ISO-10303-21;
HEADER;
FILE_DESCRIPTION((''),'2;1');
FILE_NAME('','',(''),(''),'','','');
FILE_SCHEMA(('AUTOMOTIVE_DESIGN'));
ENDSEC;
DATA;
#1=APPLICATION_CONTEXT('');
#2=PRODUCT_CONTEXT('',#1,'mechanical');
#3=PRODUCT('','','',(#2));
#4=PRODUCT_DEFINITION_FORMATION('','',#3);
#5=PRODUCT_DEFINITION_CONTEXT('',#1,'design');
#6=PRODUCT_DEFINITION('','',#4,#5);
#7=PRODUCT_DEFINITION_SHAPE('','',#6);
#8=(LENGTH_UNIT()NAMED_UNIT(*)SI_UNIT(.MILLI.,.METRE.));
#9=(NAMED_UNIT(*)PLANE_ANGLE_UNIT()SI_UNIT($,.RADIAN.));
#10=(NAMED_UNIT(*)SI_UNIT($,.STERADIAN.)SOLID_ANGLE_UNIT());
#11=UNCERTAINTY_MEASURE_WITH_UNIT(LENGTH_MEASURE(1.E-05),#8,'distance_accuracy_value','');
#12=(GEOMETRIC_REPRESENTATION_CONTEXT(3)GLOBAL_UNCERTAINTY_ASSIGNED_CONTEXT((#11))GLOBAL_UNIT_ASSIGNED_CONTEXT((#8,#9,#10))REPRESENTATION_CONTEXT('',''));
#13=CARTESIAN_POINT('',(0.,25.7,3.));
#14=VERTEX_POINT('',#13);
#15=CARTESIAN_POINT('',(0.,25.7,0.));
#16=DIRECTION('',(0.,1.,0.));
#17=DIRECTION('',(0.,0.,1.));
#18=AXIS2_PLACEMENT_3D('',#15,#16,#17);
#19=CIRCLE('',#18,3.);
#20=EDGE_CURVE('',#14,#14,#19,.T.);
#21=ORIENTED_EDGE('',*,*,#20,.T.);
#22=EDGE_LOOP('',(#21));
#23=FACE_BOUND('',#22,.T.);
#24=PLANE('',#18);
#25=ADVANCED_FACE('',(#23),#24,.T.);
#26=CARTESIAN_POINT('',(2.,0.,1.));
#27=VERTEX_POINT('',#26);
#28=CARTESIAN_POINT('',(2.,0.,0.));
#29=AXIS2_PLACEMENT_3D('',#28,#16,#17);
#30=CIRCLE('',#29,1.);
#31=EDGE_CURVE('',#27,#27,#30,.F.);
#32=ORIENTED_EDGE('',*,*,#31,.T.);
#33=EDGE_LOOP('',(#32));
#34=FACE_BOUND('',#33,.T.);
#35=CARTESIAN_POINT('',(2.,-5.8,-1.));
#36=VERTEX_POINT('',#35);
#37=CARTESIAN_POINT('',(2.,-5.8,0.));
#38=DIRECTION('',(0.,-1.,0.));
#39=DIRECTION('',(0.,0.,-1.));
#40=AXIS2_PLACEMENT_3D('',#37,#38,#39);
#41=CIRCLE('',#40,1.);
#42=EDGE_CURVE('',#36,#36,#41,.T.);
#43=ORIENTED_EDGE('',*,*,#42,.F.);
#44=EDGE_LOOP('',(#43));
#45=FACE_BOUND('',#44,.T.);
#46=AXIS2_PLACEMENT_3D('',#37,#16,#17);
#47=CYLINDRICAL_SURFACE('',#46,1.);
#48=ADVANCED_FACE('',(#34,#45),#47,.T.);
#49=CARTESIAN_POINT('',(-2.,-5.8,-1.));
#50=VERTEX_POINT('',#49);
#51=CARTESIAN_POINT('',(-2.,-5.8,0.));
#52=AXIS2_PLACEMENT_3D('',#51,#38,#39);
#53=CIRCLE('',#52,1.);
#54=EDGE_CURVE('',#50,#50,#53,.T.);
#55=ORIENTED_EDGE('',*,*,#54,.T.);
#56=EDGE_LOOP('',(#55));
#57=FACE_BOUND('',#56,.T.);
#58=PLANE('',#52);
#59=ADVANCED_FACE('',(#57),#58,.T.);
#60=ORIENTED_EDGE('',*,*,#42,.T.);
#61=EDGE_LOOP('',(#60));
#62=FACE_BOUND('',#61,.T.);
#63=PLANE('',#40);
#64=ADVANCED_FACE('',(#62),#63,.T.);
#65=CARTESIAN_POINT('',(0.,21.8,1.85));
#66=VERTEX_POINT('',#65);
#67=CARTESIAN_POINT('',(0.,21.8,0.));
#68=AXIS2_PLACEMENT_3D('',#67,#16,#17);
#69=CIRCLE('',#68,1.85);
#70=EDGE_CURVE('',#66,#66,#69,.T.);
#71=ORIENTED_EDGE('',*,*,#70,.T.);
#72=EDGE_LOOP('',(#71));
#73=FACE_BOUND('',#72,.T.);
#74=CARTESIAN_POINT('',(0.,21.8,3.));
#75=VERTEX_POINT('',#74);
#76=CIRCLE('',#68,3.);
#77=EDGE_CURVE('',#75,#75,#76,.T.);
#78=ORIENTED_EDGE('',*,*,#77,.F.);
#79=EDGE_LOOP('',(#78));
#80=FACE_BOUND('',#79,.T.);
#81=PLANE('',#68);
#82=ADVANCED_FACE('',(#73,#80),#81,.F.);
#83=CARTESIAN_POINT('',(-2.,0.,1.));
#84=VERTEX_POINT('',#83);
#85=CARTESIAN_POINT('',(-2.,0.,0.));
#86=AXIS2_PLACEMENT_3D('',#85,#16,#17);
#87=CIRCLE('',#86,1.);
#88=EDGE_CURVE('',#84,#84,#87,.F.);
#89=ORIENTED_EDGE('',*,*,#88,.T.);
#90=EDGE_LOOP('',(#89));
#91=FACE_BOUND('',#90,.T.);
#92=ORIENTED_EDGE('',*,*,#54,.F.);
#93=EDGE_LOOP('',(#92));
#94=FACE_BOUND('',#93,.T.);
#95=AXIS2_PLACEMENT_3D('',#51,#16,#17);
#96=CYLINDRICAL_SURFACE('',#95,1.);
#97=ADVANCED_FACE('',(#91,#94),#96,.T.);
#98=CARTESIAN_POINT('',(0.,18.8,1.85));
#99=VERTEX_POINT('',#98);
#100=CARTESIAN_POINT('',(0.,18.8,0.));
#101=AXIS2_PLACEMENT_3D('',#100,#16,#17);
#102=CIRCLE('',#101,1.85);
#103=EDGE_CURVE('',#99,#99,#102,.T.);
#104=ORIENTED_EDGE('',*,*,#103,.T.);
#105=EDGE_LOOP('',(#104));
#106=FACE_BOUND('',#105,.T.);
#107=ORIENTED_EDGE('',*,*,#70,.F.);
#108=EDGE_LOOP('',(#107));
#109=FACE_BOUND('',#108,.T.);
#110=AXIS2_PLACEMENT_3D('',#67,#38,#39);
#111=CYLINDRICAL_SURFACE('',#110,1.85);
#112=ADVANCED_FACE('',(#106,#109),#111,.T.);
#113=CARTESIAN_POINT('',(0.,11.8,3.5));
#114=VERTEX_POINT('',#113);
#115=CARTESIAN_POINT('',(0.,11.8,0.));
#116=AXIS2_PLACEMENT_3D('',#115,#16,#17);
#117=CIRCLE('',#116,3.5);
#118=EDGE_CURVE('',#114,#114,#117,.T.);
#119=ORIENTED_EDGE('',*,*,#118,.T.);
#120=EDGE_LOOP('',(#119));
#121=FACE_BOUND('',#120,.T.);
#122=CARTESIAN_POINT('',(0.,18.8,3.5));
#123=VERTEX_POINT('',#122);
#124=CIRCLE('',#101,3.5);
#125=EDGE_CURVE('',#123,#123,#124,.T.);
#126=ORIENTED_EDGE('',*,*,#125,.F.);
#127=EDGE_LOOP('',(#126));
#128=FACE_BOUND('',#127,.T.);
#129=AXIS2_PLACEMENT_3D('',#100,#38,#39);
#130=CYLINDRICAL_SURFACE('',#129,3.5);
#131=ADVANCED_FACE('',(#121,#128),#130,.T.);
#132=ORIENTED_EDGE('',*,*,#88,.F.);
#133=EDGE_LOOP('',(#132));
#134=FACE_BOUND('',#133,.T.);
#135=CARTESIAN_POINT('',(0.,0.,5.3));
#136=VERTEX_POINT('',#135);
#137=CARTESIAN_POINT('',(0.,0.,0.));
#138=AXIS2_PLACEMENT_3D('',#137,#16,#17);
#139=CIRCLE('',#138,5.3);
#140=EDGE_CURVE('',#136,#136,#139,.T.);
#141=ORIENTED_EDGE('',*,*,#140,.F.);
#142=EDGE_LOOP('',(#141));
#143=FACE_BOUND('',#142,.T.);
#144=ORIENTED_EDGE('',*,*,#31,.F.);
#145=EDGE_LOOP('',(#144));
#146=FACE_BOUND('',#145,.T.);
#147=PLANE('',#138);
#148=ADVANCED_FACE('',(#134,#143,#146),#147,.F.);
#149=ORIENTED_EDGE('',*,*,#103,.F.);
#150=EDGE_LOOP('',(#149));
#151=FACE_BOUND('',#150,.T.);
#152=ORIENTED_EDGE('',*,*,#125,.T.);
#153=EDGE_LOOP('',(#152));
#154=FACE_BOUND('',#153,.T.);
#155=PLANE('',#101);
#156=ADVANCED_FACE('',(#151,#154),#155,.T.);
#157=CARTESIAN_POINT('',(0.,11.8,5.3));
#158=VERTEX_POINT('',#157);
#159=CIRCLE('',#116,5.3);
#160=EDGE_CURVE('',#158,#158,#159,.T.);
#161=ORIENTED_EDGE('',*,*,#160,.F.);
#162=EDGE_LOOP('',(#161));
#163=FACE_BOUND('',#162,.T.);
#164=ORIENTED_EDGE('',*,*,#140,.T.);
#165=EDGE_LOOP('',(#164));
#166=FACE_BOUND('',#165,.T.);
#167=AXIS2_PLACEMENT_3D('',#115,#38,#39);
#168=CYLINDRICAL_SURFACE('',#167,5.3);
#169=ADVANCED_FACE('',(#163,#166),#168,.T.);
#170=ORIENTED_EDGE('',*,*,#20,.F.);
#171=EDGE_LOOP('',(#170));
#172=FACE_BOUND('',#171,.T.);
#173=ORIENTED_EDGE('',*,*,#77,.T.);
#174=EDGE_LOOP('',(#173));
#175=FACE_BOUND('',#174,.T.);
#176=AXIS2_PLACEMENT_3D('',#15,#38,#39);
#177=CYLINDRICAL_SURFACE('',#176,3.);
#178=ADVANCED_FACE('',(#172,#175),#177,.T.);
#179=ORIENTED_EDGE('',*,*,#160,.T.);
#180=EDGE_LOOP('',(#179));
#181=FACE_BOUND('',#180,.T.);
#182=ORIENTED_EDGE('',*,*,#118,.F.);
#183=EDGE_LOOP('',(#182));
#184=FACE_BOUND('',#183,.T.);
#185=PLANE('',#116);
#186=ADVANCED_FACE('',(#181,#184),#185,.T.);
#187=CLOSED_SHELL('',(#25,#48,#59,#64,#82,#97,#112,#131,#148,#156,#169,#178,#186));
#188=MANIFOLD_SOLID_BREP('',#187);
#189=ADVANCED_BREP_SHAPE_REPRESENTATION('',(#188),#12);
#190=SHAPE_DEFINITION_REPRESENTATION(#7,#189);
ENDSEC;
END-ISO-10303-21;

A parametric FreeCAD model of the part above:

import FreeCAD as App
import Part
import Sketcher

V = App.Vector

doc = App.newDocument("Part")
params = doc.addObject("Spreadsheet::Sheet", "Params")
for row, (alias, value) in enumerate([
    ("sketch1_diameter", "10.6 mm"),
    ("pad1_length", "11.8 mm"),
    ("sketch2_diameter", "7 mm"),
    ("pad2_length", "7 mm"),
    ("sketch3_diameter", "3.7 mm"),
    ("pad3_length", "3 mm"),
    ("sketch4_diameter", "6 mm"),
    ("pad4_length", "3.9 mm"),
    ("sketch5_diameter", "2 mm"),
    ("pad5_length", "5.8 mm"),
], start=1):
    params.set(f"A{row}", alias)
    params.set(f"B{row}", "=" + value)
    params.setAlias(f"B{row}", alias)

body = doc.addObject("PartDesign::Body", "Body")

# Sketch on XZ plane
sketch1 = body.newObject("Sketcher::SketchObject", "Sketch")
sketch1.AttachmentSupport = (doc.getObject("XZ_Plane"), [""])
sketch1.MapMode = "FlatFace"
sketch1.addGeometry(Part.Circle(V(0, 0, 0), V(0, 0, 1), 5), False)
sketch1.addConstraint([
    Sketcher.Constraint("Coincident", 0, 3, -1, 1),
    Sketcher.Constraint("Diameter", 0, 10.6),
])
sketch1.setExpression("Constraints[1]", "Params.sketch1_diameter")
pad1 = body.newObject("PartDesign::Pad", "Pad")
pad1.Profile = sketch1
pad1.setExpression("Length", "Params.pad1_length")
pad1.Reversed = True

# Sketch on XZ plane
sketch2 = body.newObject("Sketcher::SketchObject", "Sketch001")
sketch2.AttachmentSupport = (doc.getObject("XZ_Plane"), [""])
sketch2.MapMode = "FlatFace"
sketch2.AttachmentOffset = App.Placement(V(0, 0, -11.8), App.Rotation())
sketch2.addGeometry(Part.Circle(V(0, 0, 0), V(0, 0, 1), 3.5), False)
sketch2.addConstraint([
    Sketcher.Constraint("Coincident", 0, 3, -1, 1),
    Sketcher.Constraint("Diameter", 0, 7.0),
])
sketch2.setExpression("Constraints[1]", "Params.sketch2_diameter")
pad2 = body.newObject("PartDesign::Pad", "Pad001")
pad2.Profile = sketch2
pad2.setExpression("Length", "Params.pad2_length")
pad2.Reversed = True

# Sketch on XZ plane
sketch3 = body.newObject("Sketcher::SketchObject", "Sketch002")
sketch3.AttachmentSupport = (doc.getObject("XZ_Plane"), [""])
sketch3.MapMode = "FlatFace"
sketch3.AttachmentOffset = App.Placement(V(0, 0, -18.8), App.Rotation())
sketch3.addGeometry(Part.Circle(V(0, 0, 0), V(0, 0, 1), 1.9), False)
sketch3.addConstraint([
    Sketcher.Constraint("Coincident", 0, 3, -1, 1),
    Sketcher.Constraint("Diameter", 0, 3.7),
])
sketch3.setExpression("Constraints[1]", "Params.sketch3_diameter")
pad3 = body.newObject("PartDesign::Pad", "Pad002")
pad3.Profile = sketch3
pad3.setExpression("Length", "Params.pad3_length")
pad3.Reversed = True

# Sketch on XZ plane
sketch4 = body.newObject("Sketcher::SketchObject", "Sketch003")
sketch4.AttachmentSupport = (doc.getObject("XZ_Plane"), [""])
sketch4.MapMode = "FlatFace"
sketch4.AttachmentOffset = App.Placement(V(0, 0, -21.8), App.Rotation())
sketch4.addGeometry(Part.Circle(V(0, 0, 0), V(0, 0, 1), 3), False)
sketch4.addConstraint([
    Sketcher.Constraint("Coincident", 0, 3, -1, 1),
    Sketcher.Constraint("Diameter", 0, 6.0),
])
sketch4.setExpression("Constraints[1]", "Params.sketch4_diameter")
pad4 = body.newObject("PartDesign::Pad", "Pad003")
pad4.Profile = sketch4
pad4.setExpression("Length", "Params.pad4_length")
pad4.Reversed = True

# Sketch on XZ plane
sketch5 = body.newObject("Sketcher::SketchObject", "Sketch004")
sketch5.AttachmentSupport = (doc.getObject("XZ_Plane"), [""])
sketch5.MapMode = "FlatFace"
sketch5.addGeometry([
    Part.Circle(V(-2, 0, 0), V(0, 0, 1), 1),
    Part.Circle(V(2, 0, 0), V(0, 0, 1), 1),
], False)
sketch5.addConstraint([
    Sketcher.Constraint("Equal", 0, 1),
    Sketcher.Constraint("Symmetric", 0, 3, 1, 3, -1, 1),
    Sketcher.Constraint("PointOnObject", 0, 3, -1),
    Sketcher.Constraint("Diameter", 0, 2.0),
    Sketcher.Constraint("DistanceX", 0, 3, -1, 1, 2.0),
])
sketch5.setExpression("Constraints[3]", "Params.sketch5_diameter")
pad5 = body.newObject("PartDesign::Pad", "Pad004")
pad5.Profile = sketch5
pad5.setExpression("Length", "Params.pad5_length")

doc.recompute()
